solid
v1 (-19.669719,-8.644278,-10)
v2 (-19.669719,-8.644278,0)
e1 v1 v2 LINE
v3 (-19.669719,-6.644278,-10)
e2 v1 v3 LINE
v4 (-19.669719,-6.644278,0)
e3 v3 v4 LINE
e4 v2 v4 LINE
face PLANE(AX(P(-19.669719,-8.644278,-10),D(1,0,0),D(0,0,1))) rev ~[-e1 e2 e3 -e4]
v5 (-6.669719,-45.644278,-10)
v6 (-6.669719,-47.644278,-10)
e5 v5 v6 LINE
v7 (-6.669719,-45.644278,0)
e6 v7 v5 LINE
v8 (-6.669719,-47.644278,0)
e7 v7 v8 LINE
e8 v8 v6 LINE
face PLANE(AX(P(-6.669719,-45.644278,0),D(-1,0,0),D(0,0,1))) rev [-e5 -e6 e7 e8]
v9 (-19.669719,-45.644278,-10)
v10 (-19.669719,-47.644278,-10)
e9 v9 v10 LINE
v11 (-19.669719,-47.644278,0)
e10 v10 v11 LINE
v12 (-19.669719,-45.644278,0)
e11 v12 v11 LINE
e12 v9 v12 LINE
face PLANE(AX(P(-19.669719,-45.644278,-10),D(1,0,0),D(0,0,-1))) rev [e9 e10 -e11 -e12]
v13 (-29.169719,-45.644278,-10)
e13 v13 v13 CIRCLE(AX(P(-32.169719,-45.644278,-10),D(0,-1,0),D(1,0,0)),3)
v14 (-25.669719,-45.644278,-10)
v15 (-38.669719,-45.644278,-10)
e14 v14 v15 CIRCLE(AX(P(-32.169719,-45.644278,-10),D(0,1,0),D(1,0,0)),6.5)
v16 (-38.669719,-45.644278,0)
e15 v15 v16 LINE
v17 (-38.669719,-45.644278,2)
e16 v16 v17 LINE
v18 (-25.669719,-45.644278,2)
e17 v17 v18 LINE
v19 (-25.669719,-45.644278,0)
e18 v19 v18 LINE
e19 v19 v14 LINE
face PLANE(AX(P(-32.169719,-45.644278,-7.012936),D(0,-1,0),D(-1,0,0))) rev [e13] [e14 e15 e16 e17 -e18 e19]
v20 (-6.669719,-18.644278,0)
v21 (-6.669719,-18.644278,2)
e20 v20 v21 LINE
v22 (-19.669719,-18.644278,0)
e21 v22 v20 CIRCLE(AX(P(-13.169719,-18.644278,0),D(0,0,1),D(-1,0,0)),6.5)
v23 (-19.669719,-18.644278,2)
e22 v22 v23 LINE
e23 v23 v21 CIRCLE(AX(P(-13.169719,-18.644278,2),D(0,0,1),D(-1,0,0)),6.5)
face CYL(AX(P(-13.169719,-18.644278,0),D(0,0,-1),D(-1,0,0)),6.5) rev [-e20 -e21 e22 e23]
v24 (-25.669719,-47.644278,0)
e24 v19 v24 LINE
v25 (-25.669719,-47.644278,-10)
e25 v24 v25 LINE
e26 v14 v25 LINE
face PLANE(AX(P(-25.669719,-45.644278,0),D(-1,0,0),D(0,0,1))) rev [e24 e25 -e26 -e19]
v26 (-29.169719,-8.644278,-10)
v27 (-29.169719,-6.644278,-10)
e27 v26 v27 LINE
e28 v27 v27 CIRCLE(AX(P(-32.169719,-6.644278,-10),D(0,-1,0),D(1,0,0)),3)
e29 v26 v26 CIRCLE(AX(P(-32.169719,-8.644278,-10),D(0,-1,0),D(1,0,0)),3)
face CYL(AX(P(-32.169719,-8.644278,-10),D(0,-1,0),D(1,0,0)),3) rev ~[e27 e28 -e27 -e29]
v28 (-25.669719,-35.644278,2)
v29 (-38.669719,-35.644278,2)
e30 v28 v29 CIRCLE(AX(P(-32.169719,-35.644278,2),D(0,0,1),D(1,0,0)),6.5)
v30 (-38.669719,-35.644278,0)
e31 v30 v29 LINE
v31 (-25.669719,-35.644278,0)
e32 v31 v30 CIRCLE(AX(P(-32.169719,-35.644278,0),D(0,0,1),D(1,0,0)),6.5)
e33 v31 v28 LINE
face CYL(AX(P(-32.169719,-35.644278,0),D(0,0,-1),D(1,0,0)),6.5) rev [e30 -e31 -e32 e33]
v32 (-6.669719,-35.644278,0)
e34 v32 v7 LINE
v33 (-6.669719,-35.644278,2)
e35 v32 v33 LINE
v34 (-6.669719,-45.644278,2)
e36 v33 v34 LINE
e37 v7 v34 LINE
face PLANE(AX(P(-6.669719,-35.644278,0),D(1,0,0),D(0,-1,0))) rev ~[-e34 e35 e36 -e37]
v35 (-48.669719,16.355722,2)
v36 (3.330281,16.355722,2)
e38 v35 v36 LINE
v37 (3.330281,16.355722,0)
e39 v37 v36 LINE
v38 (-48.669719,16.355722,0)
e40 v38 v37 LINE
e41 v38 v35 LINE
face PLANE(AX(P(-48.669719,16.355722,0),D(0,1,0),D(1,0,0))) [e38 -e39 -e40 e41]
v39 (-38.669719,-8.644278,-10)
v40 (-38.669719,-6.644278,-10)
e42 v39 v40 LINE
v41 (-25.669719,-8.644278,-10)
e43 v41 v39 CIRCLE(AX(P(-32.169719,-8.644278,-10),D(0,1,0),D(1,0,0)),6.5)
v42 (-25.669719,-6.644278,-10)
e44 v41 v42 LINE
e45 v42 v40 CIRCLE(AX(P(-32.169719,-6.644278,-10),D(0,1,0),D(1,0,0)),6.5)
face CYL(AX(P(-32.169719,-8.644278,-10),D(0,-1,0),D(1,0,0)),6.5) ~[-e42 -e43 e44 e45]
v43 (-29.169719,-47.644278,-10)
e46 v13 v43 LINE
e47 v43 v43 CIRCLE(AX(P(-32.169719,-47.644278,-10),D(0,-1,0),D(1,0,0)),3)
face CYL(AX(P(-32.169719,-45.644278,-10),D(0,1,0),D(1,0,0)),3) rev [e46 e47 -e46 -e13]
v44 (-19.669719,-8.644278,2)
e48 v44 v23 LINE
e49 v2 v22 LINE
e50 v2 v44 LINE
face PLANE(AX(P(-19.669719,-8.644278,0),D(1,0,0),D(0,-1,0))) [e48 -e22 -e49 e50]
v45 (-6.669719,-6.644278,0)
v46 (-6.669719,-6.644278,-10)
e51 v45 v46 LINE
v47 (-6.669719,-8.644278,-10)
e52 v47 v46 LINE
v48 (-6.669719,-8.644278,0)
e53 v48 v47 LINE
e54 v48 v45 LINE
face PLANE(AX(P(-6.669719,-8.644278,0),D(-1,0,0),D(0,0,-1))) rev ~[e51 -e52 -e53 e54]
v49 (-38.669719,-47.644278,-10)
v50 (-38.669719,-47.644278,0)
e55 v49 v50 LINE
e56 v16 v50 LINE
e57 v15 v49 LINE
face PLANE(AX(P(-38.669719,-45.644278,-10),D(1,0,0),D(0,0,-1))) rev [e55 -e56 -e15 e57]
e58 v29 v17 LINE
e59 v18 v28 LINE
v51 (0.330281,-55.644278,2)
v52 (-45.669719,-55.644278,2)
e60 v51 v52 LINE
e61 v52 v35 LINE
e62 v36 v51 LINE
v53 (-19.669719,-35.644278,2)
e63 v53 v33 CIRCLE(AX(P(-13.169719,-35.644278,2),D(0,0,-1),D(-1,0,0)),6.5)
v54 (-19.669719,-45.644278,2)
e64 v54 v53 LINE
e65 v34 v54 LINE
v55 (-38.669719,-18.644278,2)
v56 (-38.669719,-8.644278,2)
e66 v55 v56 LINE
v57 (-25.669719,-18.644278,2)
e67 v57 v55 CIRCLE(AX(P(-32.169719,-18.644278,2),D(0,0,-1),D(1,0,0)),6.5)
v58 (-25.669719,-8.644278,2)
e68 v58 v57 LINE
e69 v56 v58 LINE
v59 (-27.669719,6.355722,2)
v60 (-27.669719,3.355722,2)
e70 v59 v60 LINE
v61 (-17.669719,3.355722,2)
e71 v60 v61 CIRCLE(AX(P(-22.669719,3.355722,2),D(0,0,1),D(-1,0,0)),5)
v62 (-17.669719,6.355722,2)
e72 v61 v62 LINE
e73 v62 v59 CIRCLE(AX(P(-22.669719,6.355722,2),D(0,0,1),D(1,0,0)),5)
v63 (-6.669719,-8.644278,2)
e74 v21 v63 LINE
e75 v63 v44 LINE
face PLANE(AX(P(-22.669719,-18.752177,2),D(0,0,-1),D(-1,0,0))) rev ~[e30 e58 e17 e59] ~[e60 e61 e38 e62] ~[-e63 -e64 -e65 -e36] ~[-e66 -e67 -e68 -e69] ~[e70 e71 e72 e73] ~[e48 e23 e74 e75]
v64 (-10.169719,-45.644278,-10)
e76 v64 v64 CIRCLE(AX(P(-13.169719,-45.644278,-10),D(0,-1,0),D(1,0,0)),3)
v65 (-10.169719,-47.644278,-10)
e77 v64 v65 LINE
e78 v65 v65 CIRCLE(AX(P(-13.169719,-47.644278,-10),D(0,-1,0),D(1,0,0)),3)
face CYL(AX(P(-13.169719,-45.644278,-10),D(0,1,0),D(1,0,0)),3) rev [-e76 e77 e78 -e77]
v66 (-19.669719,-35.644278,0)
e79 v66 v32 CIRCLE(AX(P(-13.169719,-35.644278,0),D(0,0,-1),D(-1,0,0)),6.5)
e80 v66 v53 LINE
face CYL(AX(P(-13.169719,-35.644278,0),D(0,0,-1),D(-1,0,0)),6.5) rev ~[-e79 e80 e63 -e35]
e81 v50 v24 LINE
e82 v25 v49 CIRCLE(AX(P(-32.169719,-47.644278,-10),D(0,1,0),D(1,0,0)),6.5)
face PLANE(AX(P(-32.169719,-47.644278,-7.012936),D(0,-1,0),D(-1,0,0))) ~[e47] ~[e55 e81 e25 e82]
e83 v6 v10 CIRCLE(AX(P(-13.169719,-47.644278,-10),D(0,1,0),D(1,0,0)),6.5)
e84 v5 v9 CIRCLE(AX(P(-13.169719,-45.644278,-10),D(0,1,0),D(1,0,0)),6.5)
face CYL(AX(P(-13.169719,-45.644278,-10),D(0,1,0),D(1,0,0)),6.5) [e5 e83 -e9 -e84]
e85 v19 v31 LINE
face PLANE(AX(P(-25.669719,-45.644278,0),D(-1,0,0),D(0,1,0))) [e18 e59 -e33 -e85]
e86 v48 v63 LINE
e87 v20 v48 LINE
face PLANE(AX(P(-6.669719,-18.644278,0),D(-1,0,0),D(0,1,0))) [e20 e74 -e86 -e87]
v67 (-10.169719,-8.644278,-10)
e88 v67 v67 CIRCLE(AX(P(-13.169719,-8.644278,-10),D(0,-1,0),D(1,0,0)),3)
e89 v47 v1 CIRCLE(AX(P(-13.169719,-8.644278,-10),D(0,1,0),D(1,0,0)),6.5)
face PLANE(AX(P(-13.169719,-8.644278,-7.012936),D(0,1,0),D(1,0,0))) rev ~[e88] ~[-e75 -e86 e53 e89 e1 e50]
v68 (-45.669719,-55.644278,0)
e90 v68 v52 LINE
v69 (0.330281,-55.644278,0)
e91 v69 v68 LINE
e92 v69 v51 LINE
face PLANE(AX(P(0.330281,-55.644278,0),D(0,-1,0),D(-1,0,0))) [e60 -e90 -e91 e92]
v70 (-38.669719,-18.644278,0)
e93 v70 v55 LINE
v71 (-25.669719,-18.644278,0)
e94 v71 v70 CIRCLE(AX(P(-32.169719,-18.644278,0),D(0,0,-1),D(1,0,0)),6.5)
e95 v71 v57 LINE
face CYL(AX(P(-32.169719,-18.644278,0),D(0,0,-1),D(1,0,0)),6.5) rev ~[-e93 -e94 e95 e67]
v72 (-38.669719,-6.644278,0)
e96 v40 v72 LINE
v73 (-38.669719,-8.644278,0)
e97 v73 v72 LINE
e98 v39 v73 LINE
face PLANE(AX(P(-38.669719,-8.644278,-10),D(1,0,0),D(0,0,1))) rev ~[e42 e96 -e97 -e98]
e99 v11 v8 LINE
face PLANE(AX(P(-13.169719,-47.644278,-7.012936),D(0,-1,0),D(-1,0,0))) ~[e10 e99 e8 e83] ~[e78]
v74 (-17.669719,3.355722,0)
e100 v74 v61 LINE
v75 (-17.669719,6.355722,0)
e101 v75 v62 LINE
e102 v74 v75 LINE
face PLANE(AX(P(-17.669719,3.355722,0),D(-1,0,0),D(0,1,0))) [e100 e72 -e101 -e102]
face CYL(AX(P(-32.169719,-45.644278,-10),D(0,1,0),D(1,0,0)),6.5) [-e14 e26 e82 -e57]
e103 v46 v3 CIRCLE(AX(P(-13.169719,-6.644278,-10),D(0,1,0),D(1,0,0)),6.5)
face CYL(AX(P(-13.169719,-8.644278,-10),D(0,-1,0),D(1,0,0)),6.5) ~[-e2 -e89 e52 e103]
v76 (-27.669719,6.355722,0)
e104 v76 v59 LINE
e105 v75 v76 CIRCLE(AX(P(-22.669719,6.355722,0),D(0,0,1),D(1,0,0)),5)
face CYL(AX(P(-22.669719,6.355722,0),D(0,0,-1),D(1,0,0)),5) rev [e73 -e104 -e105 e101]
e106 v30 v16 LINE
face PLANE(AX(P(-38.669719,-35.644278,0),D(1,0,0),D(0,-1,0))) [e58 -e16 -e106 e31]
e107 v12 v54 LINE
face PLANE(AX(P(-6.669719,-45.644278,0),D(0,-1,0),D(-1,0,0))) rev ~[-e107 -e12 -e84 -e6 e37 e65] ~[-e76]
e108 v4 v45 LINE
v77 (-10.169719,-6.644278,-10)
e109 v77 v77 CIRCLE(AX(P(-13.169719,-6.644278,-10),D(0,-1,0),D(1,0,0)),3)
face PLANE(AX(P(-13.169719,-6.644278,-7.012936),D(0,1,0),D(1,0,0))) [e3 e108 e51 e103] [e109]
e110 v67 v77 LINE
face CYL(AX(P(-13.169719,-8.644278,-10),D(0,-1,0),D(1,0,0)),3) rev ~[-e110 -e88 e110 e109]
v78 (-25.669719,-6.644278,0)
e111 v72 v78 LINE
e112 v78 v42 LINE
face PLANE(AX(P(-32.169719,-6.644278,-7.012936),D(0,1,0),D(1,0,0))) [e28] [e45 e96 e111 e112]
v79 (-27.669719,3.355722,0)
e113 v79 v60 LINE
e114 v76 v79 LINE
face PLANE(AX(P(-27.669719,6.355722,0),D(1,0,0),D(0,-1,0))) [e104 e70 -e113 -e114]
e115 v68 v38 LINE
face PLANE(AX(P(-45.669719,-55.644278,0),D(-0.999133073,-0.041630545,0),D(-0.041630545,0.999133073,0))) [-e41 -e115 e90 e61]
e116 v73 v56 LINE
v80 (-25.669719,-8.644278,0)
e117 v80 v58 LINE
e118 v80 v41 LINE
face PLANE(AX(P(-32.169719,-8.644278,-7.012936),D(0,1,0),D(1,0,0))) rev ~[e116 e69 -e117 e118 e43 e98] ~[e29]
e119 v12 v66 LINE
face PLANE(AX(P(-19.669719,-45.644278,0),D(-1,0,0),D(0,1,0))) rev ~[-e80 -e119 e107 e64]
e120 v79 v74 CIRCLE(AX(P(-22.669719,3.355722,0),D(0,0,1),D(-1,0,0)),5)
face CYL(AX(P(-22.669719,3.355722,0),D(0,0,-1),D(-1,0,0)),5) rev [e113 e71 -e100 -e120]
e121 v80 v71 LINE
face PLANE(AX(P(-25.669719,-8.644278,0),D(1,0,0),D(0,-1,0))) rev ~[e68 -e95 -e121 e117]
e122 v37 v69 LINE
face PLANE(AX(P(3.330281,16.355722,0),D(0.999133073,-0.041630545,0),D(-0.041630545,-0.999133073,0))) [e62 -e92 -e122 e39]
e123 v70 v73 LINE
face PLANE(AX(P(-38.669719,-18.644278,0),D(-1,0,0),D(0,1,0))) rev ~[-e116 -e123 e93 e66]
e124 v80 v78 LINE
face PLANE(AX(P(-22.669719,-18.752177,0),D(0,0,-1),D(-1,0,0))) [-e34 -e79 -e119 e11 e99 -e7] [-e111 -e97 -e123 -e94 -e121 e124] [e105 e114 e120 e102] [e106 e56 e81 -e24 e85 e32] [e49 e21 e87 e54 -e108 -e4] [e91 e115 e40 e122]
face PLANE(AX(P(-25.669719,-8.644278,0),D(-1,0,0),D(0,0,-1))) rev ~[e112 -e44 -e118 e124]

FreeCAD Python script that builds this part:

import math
import FreeCAD as App
import Part
import Sketcher
Q = App.Units.Quantity

doc = App.newDocument("Part")
body = doc.addObject("PartDesign::Body", "Body")

sketch1 = body.newObject("Sketcher::SketchObject", "Sketch")
sketch1.AttachmentSupport = (doc.getObject("XY_Plane"), [""])
sketch1.MapMode = "FlatFace"
sketch1.addGeometry(Part.LineSegment(App.Vector(-48.7, 16.4, 0), App.Vector(-45.7, -55.6, 0)), False)
sketch1.addGeometry(Part.LineSegment(App.Vector(-45.7, -55.6, 0), App.Vector(0.3, -55.6, 0)), False)
sketch1.addGeometry(Part.LineSegment(App.Vector(0.3, -55.6, 0), App.Vector(3.3, 16.4, 0)), False)
sketch1.addGeometry(Part.LineSegment(App.Vector(3.3, 16.4, 0), App.Vector(-48.7, 16.4, 0)), False)
sketch1.addGeometry(Part.LineSegment(App.Vector(-19.7, -45.6, 0), App.Vector(-19.7, -35.6, 0)), False)
sketch1.addGeometry(Part.ArcOfCircle(Part.Circle(App.Vector(-13.2, -35.6, 0), App.Vector(0, 0, 1), 6.5), math.radians(0), math.radians(180)), False)
sketch1.addGeometry(Part.LineSegment(App.Vector(-6.7, -35.6, 0), App.Vector(-6.7, -45.6, 0)), False)
sketch1.addGeometry(Part.LineSegment(App.Vector(-6.7, -45.6, 0), App.Vector(-19.7, -45.6, 0)), False)
sketch1.addGeometry(Part.LineSegment(App.Vector(-25.7, -35.6, 0), App.Vector(-25.7, -45.6, 0)), False)
sketch1.addGeometry(Part.LineSegment(App.Vector(-25.7, -45.6, 0), App.Vector(-38.7, -45.6, 0)), False)
sketch1.addGeometry(Part.LineSegment(App.Vector(-38.7, -45.6, 0), App.Vector(-38.7, -35.6, 0)), False)
sketch1.addGeometry(Part.ArcOfCircle(Part.Circle(App.Vector(-32.2, -35.6, 0), App.Vector(0, 0, 1), 6.5), math.radians(0), math.radians(180)), False)
sketch1.addGeometry(Part.LineSegment(App.Vector(-19.7, -18.6, 0), App.Vector(-19.7, -8.6, 0)), False)
sketch1.addGeometry(Part.LineSegment(App.Vector(-19.7, -8.6, 0), App.Vector(-6.7, -8.6, 0)), False)
sketch1.addGeometry(Part.LineSegment(App.Vector(-6.7, -8.6, 0), App.Vector(-6.7, -18.6, 0)), False)
sketch1.addGeometry(Part.ArcOfCircle(Part.Circle(App.Vector(-13.2, -18.6, 0), App.Vector(0, 0, 1), 6.5), math.radians(180), math.radians(360)), False)
sketch1.addGeometry(Part.LineSegment(App.Vector(-25.7, -8.6, 0), App.Vector(-25.7, -18.6, 0)), False)
sketch1.addGeometry(Part.ArcOfCircle(Part.Circle(App.Vector(-32.2, -18.6, 0), App.Vector(0, 0, 1), 6.5), math.radians(180), math.radians(360)), False)
sketch1.addGeometry(Part.LineSegment(App.Vector(-38.7, -18.6, 0), App.Vector(-38.7, -8.6, 0)), False)
sketch1.addGeometry(Part.LineSegment(App.Vector(-38.7, -8.6, 0), App.Vector(-25.7, -8.6, 0)), False)
sketch1.addGeometry(Part.LineSegment(App.Vector(-17.7, 6.4, 0), App.Vector(-17.7, 3.4, 0)), False)
sketch1.addGeometry(Part.ArcOfCircle(Part.Circle(App.Vector(-22.7, 3.4, 0), App.Vector(0, 0, 1), 5), math.radians(180), math.radians(360)), False)
sketch1.addGeometry(Part.LineSegment(App.Vector(-27.7, 3.4, 0), App.Vector(-27.7, 6.4, 0)), False)
sketch1.addGeometry(Part.ArcOfCircle(Part.Circle(App.Vector(-22.7, 6.4, 0), App.Vector(0, 0, 1), 5), math.radians(0), math.radians(180)), False)
sketch1.addConstraint(Sketcher.Constraint("Coincident", 0, 2, 1, 1))
sketch1.addConstraint(Sketcher.Constraint("Coincident", 1, 2, 2, 1))
sketch1.addConstraint(Sketcher.Constraint("Coincident", 2, 2, 3, 1))
sketch1.addConstraint(Sketcher.Constraint("Coincident", 3, 2, 0, 1))
sketch1.addConstraint(Sketcher.Constraint("Tangent", 4, 2, 5, 2))
sketch1.addConstraint(Sketcher.Constraint("Tangent", 5, 1, 6, 1))
sketch1.addConstraint(Sketcher.Constraint("Coincident", 6, 2, 7, 1))
sketch1.addConstraint(Sketcher.Constraint("Coincident", 7, 2, 4, 1))
sketch1.addConstraint(Sketcher.Constraint("Coincident", 8, 2, 9, 1))
sketch1.addConstraint(Sketcher.Constraint("Coincident", 9, 2, 10, 1))
sketch1.addConstraint(Sketcher.Constraint("Tangent", 10, 2, 11, 2))
sketch1.addConstraint(Sketcher.Constraint("Tangent", 11, 1, 8, 1))
sketch1.addConstraint(Sketcher.Constraint("Coincident", 12, 2, 13, 1))
sketch1.addConstraint(Sketcher.Constraint("Coincident", 13, 2, 14, 1))
sketch1.addConstraint(Sketcher.Constraint("Tangent", 14, 2, 15, 2))
sketch1.addConstraint(Sketcher.Constraint("Tangent", 15, 1, 12, 1))
sketch1.addConstraint(Sketcher.Constraint("Tangent", 16, 2, 17, 2))
sketch1.addConstraint(Sketcher.Constraint("Tangent", 17, 1, 18, 1))
sketch1.addConstraint(Sketcher.Constraint("Coincident", 18, 2, 19, 1))
sketch1.addConstraint(Sketcher.Constraint("Coincident", 19, 2, 16, 1))
sketch1.addConstraint(Sketcher.Constraint("Tangent", 20, 2, 21, 2))
sketch1.addConstraint(Sketcher.Constraint("Tangent", 21, 1, 22, 1))
sketch1.addConstraint(Sketcher.Constraint("Tangent", 22, 2, 23, 2))
sketch1.addConstraint(Sketcher.Constraint("Tangent", 23, 1, 20, 1))
sketch1.addConstraint(Sketcher.Constraint("Horizontal", 1))
sketch1.addConstraint(Sketcher.Constraint("Horizontal", 3))
sketch1.addConstraint(Sketcher.Constraint("Vertical", 4))
sketch1.addConstraint(Sketcher.Constraint("Vertical", 6))
sketch1.addConstraint(Sketcher.Constraint("Horizontal", 7))
sketch1.addConstraint(Sketcher.Constraint("Vertical", 8))
sketch1.addConstraint(Sketcher.Constraint("Horizontal", 9))
sketch1.addConstraint(Sketcher.Constraint("Vertical", 10))
sketch1.addConstraint(Sketcher.Constraint("Vertical", 12))
sketch1.addConstraint(Sketcher.Constraint("Horizontal", 13))
sketch1.addConstraint(Sketcher.Constraint("Vertical", 14))
sketch1.addConstraint(Sketcher.Constraint("Vertical", 16))
sketch1.addConstraint(Sketcher.Constraint("Vertical", 18))
sketch1.addConstraint(Sketcher.Constraint("Horizontal", 19))
sketch1.addConstraint(Sketcher.Constraint("Vertical", 20))
sketch1.addConstraint(Sketcher.Constraint("Vertical", 22))
sketch1.addConstraint(Sketcher.Constraint("Equal", 5, 11))
sketch1.addConstraint(Sketcher.Constraint("Equal", 11, 15))
sketch1.addConstraint(Sketcher.Constraint("Equal", 15, 17))
sketch1.addConstraint(Sketcher.Constraint("Horizontal", 5, 3, 11, 3))
sketch1.addConstraint(Sketcher.Constraint("Horizontal", 15, 3, 17, 3))
sketch1.addConstraint(Sketcher.Constraint("Horizontal", 7, 2, 8, 2))
sketch1.addConstraint(Sketcher.Constraint("Horizontal", 13, 2, 18, 2))
sketch1.addConstraint(Sketcher.Constraint("Vertical", 5, 3, 15, 3))
sketch1.addConstraint(Sketcher.Constraint("Vertical", 11, 3, 17, 3))
sketch1.addConstraint(Sketcher.Constraint("Equal", 10, 12))
sketch1.addConstraint(Sketcher.Constraint("Equal", 0, 2))
sketch1.addConstraint(Sketcher.Constraint("Radius", 21, Q("5 mm")))
sketch1.addConstraint(Sketcher.Constraint("Radius", 5, Q("6.5 mm")))
sketch1.addConstraint(Sketcher.Constraint("DistanceX", 1, 1, 1, 2, Q("46 mm")))
sketch1.addConstraint(Sketcher.Constraint("DistanceX", 3, 2, 3, 1, Q("52 mm")))
sketch1.addConstraint(Sketcher.Constraint("DistanceY", 4, 1, 4, 2, Q("10 mm")))
sketch1.addConstraint(Sketcher.Constraint("DistanceY", 20, 2, 20, 1, Q("3 mm")))
sketch1.addConstraint(Sketcher.Constraint("DistanceX", 11, 3, 5, 3, Q("19 mm")))
sketch1.addConstraint(Sketcher.Constraint("DistanceY", 5, 3, 15, 3, Q("17 mm")))
sketch1.addConstraint(Sketcher.Constraint("DistanceY", 15, 3, 21, 3, Q("22 mm")))
sketch1.addConstraint(Sketcher.Constraint("DistanceY", 0, 2, 11, 3, Q("20 mm")))
sketch1.addConstraint(Sketcher.Constraint("DistanceX", 0, 2, 21, 3, Q("23 mm")))
sketch1.addConstraint(Sketcher.Constraint("DistanceY", 23, 3, 2, 2, Q("10 mm")))
sketch1.addConstraint(Sketcher.Constraint("DistanceX", 4, 2, 1, 2, Q("20 mm")))
sketch1.addConstraint(Sketcher.Constraint("DistanceX", 5, 3, -1, 1, Q("13.169719 mm")))
sketch1.addConstraint(Sketcher.Constraint("DistanceY", 5, 3, -1, 1, Q("35.644278 mm")))
pad1 = body.newObject("PartDesign::Pad", "Pad")
pad1.Profile = sketch1
pad1.Length = 2

sketch2 = body.newObject("Sketcher::SketchObject", "Sketch001")
sketch2.AttachmentSupport = (doc.getObject("XZ_Plane"), [""])
sketch2.MapMode = "FlatFace"
sketch2.AttachmentOffset = App.Placement(App.Vector(0, 0, 8.644278), App.Rotation())
sketch2.addGeometry(Part.ArcOfCircle(Part.Circle(App.Vector(-32.2, -10, 0), App.Vector(0, 0, 1), 6.5), math.radians(180), math.radians(360)), False)
sketch2.addGeometry(Part.LineSegment(App.Vector(-25.7, -10, 0), App.Vector(-25.7, 0, 0)), False)
sketch2.addGeometry(Part.LineSegment(App.Vector(-25.7, 0, 0), App.Vector(-38.7, 0, 0)), False)
sketch2.addGeometry(Part.LineSegment(App.Vector(-38.7, 0, 0), App.Vector(-38.7, -10, 0)), False)
sketch2.addGeometry(Part.Circle(App.Vector(-32.2, -10, 0), App.Vector(0, 0, 1), 3), False)
sketch2.addGeometry(Part.ArcOfCircle(Part.Circle(App.Vector(-13.2, -10, 0), App.Vector(0, 0, 1), 6.5), math.radians(180), math.radians(360)), False)
sketch2.addGeometry(Part.LineSegment(App.Vector(-6.7, -10, 0), App.Vector(-6.7, 0, 0)), False)
sketch2.addGeometry(Part.LineSegment(App.Vector(-6.7, 0, 0), App.Vector(-19.7, 0, 0)), False)
sketch2.addGeometry(Part.LineSegment(App.Vector(-19.7, 0, 0), App.Vector(-19.7, -10, 0)), False)
sketch2.addGeometry(Part.Circle(App.Vector(-13.2, -10, 0), App.Vector(0, 0, 1), 3), False)
sketch2.addConstraint(Sketcher.Constraint("Tangent", 0, 2, 1, 1))
sketch2.addConstraint(Sketcher.Constraint("Coincident", 1, 2, 2, 1))
sketch2.addConstraint(Sketcher.Constraint("Coincident", 2, 2, 3, 1))
sketch2.addConstraint(Sketcher.Constraint("Tangent", 3, 2, 0, 1))
sketch2.addConstraint(Sketcher.Constraint("Tangent", 5, 2, 6, 1))
sketch2.addConstraint(Sketcher.Constraint("Coincident", 6, 2, 7, 1))
sketch2.addConstraint(Sketcher.Constraint("Coincident", 7, 2, 8, 1))
sketch2.addConstraint(Sketcher.Constraint("Tangent", 8, 2, 5, 1))
sketch2.addConstraint(Sketcher.Constraint("Vertical", 1))
sketch2.addConstraint(Sketcher.Constraint("Horizontal", 2))
sketch2.addConstraint(Sketcher.Constraint("Vertical", 3))
sketch2.addConstraint(Sketcher.Constraint("Vertical", 6))
sketch2.addConstraint(Sketcher.Constraint("Horizontal", 7))
sketch2.addConstraint(Sketcher.Constraint("Vertical", 8))
sketch2.addConstraint(Sketcher.Constraint("Coincident", 4, 3, 0, 3))
sketch2.addConstraint(Sketcher.Constraint("Coincident", 9, 3, 5, 3))
sketch2.addConstraint(Sketcher.Constraint("Equal", 0, 5))
sketch2.addConstraint(Sketcher.Constraint("Equal", 4, 9))
sketch2.addConstraint(Sketcher.Constraint("PointOnObject", 1, 2, -1))
sketch2.addConstraint(Sketcher.Constraint("PointOnObject", 6, 2, -1))
sketch2.addConstraint(Sketcher.Constraint("Horizontal", 4, 3, 5, 3))
sketch2.addConstraint(Sketcher.Constraint("Diameter", 4, Q("6 mm")))
sketch2.addConstraint(Sketcher.Constraint("Radius", 0, Q("6.5 mm")))
sketch2.addConstraint(Sketcher.Constraint("DistanceY", 1, 1, 1, 2, Q("10 mm")))
sketch2.addConstraint(Sketcher.Constraint("DistanceX", 0, 3, 5, 3, Q("19 mm")))
sketch2.addConstraint(Sketcher.Constraint("DistanceX", 0, 3, -1, 1, Q("32.169719 mm")))
pad2 = body.newObject("PartDesign::Pad", "Pad001")
pad2.Profile = sketch2
pad2.Length = 2
pad2.Reversed = True
doc.recompute()

datumplane = body.newObject("PartDesign::Plane", "DatumPlane")
datumplane.AttachmentSupport = (doc.getObject("XZ_Plane"), [""])
datumplane.MapMode = "FlatFace"
datumplane.AttachmentOffset = App.Placement(App.Vector(0, 0, 27.144278), App.Rotation())
mirrored = body.newObject("PartDesign::Mirrored", "Mirrored")
mirrored.Originals = [pad2]
mirrored.MirrorPlane = (datumplane, [""])
body.Tip = mirrored

doc.recompute()
